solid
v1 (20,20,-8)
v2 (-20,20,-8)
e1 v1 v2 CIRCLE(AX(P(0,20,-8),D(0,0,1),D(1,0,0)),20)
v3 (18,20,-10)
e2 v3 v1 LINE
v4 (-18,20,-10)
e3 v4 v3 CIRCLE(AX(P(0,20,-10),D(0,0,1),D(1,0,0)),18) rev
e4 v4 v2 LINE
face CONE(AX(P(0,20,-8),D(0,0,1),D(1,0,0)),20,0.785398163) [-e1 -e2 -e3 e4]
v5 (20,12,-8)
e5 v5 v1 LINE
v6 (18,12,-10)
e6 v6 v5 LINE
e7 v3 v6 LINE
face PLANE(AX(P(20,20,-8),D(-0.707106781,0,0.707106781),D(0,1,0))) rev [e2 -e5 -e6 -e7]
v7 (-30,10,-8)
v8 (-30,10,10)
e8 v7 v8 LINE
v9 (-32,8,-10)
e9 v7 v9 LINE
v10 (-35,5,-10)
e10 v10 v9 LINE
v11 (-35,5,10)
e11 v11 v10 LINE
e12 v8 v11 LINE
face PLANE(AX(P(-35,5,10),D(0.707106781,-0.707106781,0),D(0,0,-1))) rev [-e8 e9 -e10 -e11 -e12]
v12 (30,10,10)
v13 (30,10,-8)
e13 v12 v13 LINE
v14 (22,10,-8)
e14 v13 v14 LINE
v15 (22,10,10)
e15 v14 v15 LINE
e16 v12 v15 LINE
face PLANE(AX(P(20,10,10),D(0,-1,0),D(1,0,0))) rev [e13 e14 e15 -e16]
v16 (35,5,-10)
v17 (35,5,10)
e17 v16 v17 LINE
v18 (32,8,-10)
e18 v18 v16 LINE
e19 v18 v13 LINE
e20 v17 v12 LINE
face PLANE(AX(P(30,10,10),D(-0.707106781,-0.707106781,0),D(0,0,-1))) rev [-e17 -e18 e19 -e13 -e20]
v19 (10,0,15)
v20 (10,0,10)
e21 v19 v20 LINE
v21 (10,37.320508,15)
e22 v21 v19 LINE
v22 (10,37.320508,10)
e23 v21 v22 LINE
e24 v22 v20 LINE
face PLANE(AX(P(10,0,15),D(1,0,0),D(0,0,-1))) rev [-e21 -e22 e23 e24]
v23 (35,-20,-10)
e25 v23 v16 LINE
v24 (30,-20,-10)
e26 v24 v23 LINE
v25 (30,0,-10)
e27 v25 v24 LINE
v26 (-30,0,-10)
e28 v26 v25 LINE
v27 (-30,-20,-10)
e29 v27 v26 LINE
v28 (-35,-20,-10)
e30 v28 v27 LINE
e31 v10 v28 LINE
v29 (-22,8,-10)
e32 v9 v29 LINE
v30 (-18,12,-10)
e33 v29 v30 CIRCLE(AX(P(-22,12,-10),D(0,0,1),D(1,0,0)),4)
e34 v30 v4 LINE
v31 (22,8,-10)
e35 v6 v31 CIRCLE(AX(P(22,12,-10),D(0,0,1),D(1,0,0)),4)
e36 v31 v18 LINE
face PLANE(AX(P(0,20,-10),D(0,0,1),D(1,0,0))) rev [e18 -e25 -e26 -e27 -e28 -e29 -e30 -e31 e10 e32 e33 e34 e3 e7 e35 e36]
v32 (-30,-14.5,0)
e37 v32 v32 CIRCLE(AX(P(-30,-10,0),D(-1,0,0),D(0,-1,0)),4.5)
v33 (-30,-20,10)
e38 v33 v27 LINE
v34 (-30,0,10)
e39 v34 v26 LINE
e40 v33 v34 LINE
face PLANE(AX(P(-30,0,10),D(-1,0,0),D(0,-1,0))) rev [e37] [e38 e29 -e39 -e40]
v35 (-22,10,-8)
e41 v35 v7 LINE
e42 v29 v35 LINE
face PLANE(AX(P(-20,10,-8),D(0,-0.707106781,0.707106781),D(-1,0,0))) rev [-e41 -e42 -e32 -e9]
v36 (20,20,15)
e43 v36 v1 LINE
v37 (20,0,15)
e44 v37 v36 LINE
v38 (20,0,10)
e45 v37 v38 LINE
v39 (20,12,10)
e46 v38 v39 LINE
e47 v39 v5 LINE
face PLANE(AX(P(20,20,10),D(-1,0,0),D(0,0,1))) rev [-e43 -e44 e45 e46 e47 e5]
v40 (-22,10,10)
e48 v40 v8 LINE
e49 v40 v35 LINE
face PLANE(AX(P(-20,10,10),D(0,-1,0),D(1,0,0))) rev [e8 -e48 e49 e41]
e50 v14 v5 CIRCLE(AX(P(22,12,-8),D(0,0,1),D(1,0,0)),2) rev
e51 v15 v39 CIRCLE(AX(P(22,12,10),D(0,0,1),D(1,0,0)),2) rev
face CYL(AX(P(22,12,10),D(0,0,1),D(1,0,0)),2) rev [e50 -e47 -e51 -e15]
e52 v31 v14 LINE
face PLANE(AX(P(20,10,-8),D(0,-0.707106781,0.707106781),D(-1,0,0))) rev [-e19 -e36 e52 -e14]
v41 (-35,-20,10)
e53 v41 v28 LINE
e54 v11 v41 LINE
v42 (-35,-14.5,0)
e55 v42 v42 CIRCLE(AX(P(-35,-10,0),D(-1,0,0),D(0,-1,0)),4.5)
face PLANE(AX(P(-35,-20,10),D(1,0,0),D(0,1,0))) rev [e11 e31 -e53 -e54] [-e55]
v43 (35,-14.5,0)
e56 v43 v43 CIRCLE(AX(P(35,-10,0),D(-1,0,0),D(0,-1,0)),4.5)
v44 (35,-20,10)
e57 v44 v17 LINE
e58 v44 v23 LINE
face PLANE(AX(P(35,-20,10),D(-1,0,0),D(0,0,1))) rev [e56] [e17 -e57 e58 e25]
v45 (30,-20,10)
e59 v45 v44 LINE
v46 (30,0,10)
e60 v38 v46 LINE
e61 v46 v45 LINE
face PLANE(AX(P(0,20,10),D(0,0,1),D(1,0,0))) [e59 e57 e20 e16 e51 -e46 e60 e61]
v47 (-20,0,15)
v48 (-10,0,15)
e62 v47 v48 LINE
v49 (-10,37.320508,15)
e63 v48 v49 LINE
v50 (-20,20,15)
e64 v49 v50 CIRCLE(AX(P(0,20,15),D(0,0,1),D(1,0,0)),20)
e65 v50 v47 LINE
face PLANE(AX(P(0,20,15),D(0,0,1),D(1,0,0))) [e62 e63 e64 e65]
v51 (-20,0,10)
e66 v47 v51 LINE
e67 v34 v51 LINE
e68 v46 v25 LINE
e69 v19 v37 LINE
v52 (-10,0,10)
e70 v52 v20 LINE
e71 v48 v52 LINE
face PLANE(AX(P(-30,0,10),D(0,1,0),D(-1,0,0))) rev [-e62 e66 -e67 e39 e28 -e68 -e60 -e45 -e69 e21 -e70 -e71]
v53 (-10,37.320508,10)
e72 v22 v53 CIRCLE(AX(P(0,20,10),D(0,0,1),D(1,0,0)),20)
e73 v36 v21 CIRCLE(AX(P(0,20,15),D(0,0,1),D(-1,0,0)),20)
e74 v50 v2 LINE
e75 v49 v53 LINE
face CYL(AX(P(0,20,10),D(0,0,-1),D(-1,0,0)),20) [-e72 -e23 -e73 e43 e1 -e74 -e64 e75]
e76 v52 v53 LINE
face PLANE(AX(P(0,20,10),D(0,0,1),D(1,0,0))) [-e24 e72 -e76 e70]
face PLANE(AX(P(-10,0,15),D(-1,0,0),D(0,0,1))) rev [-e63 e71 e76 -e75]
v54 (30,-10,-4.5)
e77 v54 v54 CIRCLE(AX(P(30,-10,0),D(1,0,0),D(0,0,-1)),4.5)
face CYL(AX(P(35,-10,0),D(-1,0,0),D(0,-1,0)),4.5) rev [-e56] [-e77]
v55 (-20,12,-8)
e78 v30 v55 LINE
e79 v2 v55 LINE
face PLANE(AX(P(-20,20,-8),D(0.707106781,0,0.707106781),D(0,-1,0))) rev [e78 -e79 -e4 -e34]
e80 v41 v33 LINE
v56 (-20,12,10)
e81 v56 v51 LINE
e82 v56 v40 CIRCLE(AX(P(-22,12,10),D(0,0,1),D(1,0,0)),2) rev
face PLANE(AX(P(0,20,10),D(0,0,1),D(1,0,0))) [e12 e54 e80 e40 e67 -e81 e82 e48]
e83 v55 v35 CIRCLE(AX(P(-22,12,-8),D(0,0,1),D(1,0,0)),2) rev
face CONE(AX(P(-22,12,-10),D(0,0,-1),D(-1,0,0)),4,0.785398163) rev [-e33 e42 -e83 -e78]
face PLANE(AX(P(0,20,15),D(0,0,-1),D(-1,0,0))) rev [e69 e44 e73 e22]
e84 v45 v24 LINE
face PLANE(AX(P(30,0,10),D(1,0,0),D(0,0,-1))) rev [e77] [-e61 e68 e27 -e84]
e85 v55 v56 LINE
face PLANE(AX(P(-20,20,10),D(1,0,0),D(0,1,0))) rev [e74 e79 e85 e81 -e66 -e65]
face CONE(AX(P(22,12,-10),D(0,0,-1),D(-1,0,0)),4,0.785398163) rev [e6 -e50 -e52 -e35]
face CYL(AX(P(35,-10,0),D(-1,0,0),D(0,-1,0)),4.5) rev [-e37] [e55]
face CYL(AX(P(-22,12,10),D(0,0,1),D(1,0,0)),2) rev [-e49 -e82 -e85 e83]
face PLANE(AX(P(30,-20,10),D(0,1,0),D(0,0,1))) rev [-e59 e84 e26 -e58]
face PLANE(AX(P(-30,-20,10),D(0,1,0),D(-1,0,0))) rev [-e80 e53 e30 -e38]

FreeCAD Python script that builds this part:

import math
import FreeCAD as App
import Part
import Sketcher

V = App.Vector


def edges_at(feature, points):
    """Names of the edges that pass closest to the given points."""
    edges = feature.Shape.Edges
    near = lambda p: min(range(len(edges)), key=lambda i: edges[i].distToShape(Part.Vertex(*p))[0])
    return sorted({f"Edge{near(p) + 1}" for p in points})

doc = App.newDocument("Part")
body = doc.addObject("PartDesign::Body", "Body")

# Sketch on XY plane
sketch1 = body.newObject("Sketcher::SketchObject", "Sketch")
sketch1.AttachmentSupport = (doc.getObject("XY_Plane"), [""])
sketch1.MapMode = "FlatFace"
sketch1.addGeometry(Part.LineSegment(V(-30, 0, 0), V(30, 0, 0)), False)
sketch1.addGeometry(Part.LineSegment(V(30, 0, 0), V(30, -20, 0)), False)
sketch1.addGeometry(Part.LineSegment(V(30, -20, 0), V(35, -20, 0)), False)
sketch1.addGeometry(Part.LineSegment(V(35, -20, 0), V(35, 10, 0)), False)
sketch1.addGeometry(Part.LineSegment(V(35, 10, 0), V(20, 10, 0)), False)
sketch1.addGeometry(Part.LineSegment(V(20, 10, 0), V(20, 20, 0)), False)
sketch1.addGeometry(Part.ArcOfCircle(Part.Circle(V(0, 20, 0), V(0, 0, 1), 20), math.radians(0), math.radians(180)), False)
sketch1.addGeometry(Part.LineSegment(V(-20, 20, 0), V(-20, 10, 0)), False)
sketch1.addGeometry(Part.LineSegment(V(-20, 10, 0), V(-35, 10, 0)), False)
sketch1.addGeometry(Part.LineSegment(V(-35, 10, 0), V(-35, -20, 0)), False)
sketch1.addGeometry(Part.LineSegment(V(-35, -20, 0), V(-30, -20, 0)), False)
sketch1.addGeometry(Part.LineSegment(V(-30, -20, 0), V(-30, 0, 0)), False)
sketch1.addConstraint(Sketcher.Constraint("Coincident", 0, 2, 1, 1))
sketch1.addConstraint(Sketcher.Constraint("Coincident", 1, 2, 2, 1))
sketch1.addConstraint(Sketcher.Constraint("Coincident", 2, 2, 3, 1))
sketch1.addConstraint(Sketcher.Constraint("Coincident", 3, 2, 4, 1))
sketch1.addConstraint(Sketcher.Constraint("Coincident", 4, 2, 5, 1))
sketch1.addConstraint(Sketcher.Constraint("Tangent", 5, 2, 6, 1))
sketch1.addConstraint(Sketcher.Constraint("Tangent", 6, 2, 7, 1))
sketch1.addConstraint(Sketcher.Constraint("Coincident", 7, 2, 8, 1))
sketch1.addConstraint(Sketcher.Constraint("Coincident", 8, 2, 9, 1))
sketch1.addConstraint(Sketcher.Constraint("Coincident", 9, 2, 10, 1))
sketch1.addConstraint(Sketcher.Constraint("Coincident", 10, 2, 11, 1))
sketch1.addConstraint(Sketcher.Constraint("Coincident", 11, 2, 0, 1))
sketch1.addConstraint(Sketcher.Constraint("Horizontal", 0))
sketch1.addConstraint(Sketcher.Constraint("Vertical", 1))
sketch1.addConstraint(Sketcher.Constraint("Horizontal", 2))
sketch1.addConstraint(Sketcher.Constraint("Vertical", 3))
sketch1.addConstraint(Sketcher.Constraint("Horizontal", 4))
sketch1.addConstraint(Sketcher.Constraint("Vertical", 5))
sketch1.addConstraint(Sketcher.Constraint("Vertical", 7))
sketch1.addConstraint(Sketcher.Constraint("Horizontal", 8))
sketch1.addConstraint(Sketcher.Constraint("Vertical", 9))
sketch1.addConstraint(Sketcher.Constraint("Horizontal", 10))
sketch1.addConstraint(Sketcher.Constraint("Vertical", 11))
sketch1.addConstraint(Sketcher.Constraint("Symmetric", 0, 2, 11, 2, -1, 1))
sketch1.addConstraint(Sketcher.Constraint("Symmetric", 4, 2, 7, 2, -2))
sketch1.addConstraint(Sketcher.Constraint("Symmetric", 2, 2, 9, 2, -2))
sketch1.addConstraint(Sketcher.Constraint("Radius", 6, 20.0))
sketch1.addConstraint(Sketcher.Constraint("DistanceX", 0, 1, 0, 2, 60.0))
sketch1.addConstraint(Sketcher.Constraint("DistanceX", 2, 1, 2, 2, 5.0))
sketch1.addConstraint(Sketcher.Constraint("DistanceY", 1, 2, 1, 1, 20.0))
sketch1.addConstraint(Sketcher.Constraint("DistanceY", 3, 1, 3, 2, 30.0))
sketch1.addConstraint(Sketcher.Constraint("DistanceY", 5, 1, 5, 2, 10.0))
pad1 = body.newObject("PartDesign::Pad", "Pad")
pad1.Profile = sketch1
pad1.Length = 20
pad1.Midplane = True

# Sketch on YZ plane
sketch2 = body.newObject("Sketcher::SketchObject", "Sketch001")
sketch2.AttachmentSupport = (doc.getObject("YZ_Plane"), [""])
sketch2.MapMode = "FlatFace"
sketch2.AttachmentOffset = App.Placement(V(0, 0, -35), App.Rotation())
sketch2.addGeometry(Part.Circle(V(-10, 0, 0), V(0, 0, 1), 4.5), False)
sketch2.addConstraint(Sketcher.Constraint("PointOnObject", 0, 3, -1))
sketch2.addConstraint(Sketcher.Constraint("Diameter", 0, 9.0))
sketch2.addConstraint(Sketcher.Constraint("DistanceX", 0, 3, -1, 1, 10.0))
pocket1 = body.newObject("PartDesign::Pocket", "Pocket")
pocket1.Profile = sketch2
pocket1.Type = "ThroughAll"
pocket1.Reversed = True
doc.recompute()

chamfer = body.newObject("PartDesign::Chamfer", "Chamfer")
chamfer.Base = (pocket1, edges_at(pocket1, [(35, 10, 0), (-35, 10, 0)]))
chamfer.Size = 5
doc.recompute()

fillet = body.newObject("PartDesign::Fillet", "Fillet")
fillet.Base = (chamfer, edges_at(chamfer, [(-20, 10, 0), (20, 10, 0)]))
fillet.Radius = 2
doc.recompute()

chamfer2 = body.newObject("PartDesign::Chamfer", "Chamfer001")
chamfer2.Base = (fillet, edges_at(fillet, [
    (-20, 16, -10),
    (0, 40, -10),
    (26, 10, -10),
    (-26, 10, -10),
    (20, 16, -10),
    (-20.586, 10.586, -10),
    (20.586, 10.586, -10),
]))
chamfer2.Size = 2

# Sketch on XY plane
sketch3 = body.newObject("Sketcher::SketchObject", "Sketch002")
sketch3.AttachmentSupport = (doc.getObject("XY_Plane"), [""])
sketch3.MapMode = "FlatFace"
sketch3.AttachmentOffset = App.Placement(V(0, 0, 10), App.Rotation())
sketch3.addGeometry(Part.LineSegment(V(10, 0, 0), V(20, 0, 0)), False)
sketch3.addGeometry(Part.LineSegment(V(20, 0, 0), V(20, 20, 0)), False)
sketch3.addGeometry(Part.ArcOfCircle(Part.Circle(V(0, 20, 0), V(0, 0, 1), 20), math.radians(0), math.radians(60)), False)
sketch3.addGeometry(Part.LineSegment(V(10, 37, 0), V(10, 0, 0)), False)
sketch3.addGeometry(Part.LineSegment(V(-10, 0, 0), V(-10, 37, 0)), False)
sketch3.addGeometry(Part.ArcOfCircle(Part.Circle(V(0, 20, 0), V(0, 0, 1), 20), math.radians(120), math.radians(180)), False)
sketch3.addGeometry(Part.LineSegment(V(-20, 20, 0), V(-20, 0, 0)), False)
sketch3.addGeometry(Part.LineSegment(V(-20, 0, 0), V(-10, 0, 0)), False)
sketch3.addConstraint(Sketcher.Constraint("Coincident", 0, 2, 1, 1))
sketch3.addConstraint(Sketcher.Constraint("Tangent", 1, 2, 2, 1))
sketch3.addConstraint(Sketcher.Constraint("Coincident", 2, 2, 3, 1))
sketch3.addConstraint(Sketcher.Constraint("Coincident", 3, 2, 0, 1))
sketch3.addConstraint(Sketcher.Constraint("Coincident", 4, 2, 5, 1))
sketch3.addConstraint(Sketcher.Constraint("Tangent", 5, 2, 6, 1))
sketch3.addConstraint(Sketcher.Constraint("Coincident", 6, 2, 7, 1))
sketch3.addConstraint(Sketcher.Constraint("Coincident", 7, 2, 4, 1))
sketch3.addConstraint(Sketcher.Constraint("Horizontal", 0))
sketch3.addConstraint(Sketcher.Constraint("Vertical", 1))
sketch3.addConstraint(Sketcher.Constraint("Vertical", 3))
sketch3.addConstraint(Sketcher.Constraint("Vertical", 4))
sketch3.addConstraint(Sketcher.Constraint("Vertical", 6))
sketch3.addConstraint(Sketcher.Constraint("Horizontal", 7))
sketch3.addConstraint(Sketcher.Constraint("Coincident", 5, 3, 2, 3))
sketch3.addConstraint(Sketcher.Constraint("Equal", 2, 5))
sketch3.addConstraint(Sketcher.Constraint("Symmetric", 0, 2, 6, 2, -1, 1))
sketch3.addConstraint(Sketcher.Constraint("Symmetric", 3, 2, 7, 2, -2))
sketch3.addConstraint(Sketcher.Constraint("Radius", 2, 20.0))
sketch3.addConstraint(Sketcher.Constraint("DistanceX", 0, 1, 0, 2, 10.0))
sketch3.addConstraint(Sketcher.Constraint("DistanceY", 1, 1, 1, 2, 20.0))
pad2 = body.newObject("PartDesign::Pad", "Pad001")
pad2.Profile = sketch3
pad2.Length = 5

doc.recompute()
